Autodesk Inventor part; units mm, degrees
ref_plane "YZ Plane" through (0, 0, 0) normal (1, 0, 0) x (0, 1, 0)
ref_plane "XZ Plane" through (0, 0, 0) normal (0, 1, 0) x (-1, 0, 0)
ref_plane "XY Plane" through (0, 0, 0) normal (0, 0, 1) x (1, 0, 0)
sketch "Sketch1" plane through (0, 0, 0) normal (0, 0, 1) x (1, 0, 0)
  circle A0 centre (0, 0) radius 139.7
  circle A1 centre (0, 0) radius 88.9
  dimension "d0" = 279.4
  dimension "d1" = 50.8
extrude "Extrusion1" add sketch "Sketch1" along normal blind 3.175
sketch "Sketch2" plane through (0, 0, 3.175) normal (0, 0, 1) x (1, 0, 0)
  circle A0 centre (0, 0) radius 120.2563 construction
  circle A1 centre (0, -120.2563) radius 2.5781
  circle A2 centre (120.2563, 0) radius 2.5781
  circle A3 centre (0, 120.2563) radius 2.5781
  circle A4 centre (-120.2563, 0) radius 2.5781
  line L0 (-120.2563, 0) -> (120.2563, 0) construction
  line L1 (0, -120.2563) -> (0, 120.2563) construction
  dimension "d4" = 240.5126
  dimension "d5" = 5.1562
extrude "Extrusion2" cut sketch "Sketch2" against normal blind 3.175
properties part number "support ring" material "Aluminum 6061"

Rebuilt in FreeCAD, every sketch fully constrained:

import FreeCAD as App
import Part
import Sketcher
Q = App.Units.Quantity

doc = App.newDocument("Part")
body = doc.addObject("PartDesign::Body", "Body")

# Sketch on XY plane
sketch1 = body.newObject("Sketcher::SketchObject", "Sketch")
sketch1.AttachmentSupport = (doc.getObject("XY_Plane"), [""])
sketch1.MapMode = "FlatFace"
sketch1.addGeometry([
    Part.Circle(App.Vector(0, 0, 0), App.Vector(0, 0, 1), 140),
    Part.Circle(App.Vector(0, 0, 0), App.Vector(0, 0, 1), 89),
], False)
sketch1.addConstraint([
    Sketcher.Constraint("Coincident", 0, 3, -1, 1),
    Sketcher.Constraint("Coincident", 1, 3, -1, 1),
    Sketcher.Constraint("Diameter", 0, Q("11 in")),
    Sketcher.Constraint("Diameter", 1, Q("7 in")),
])
pad1 = body.newObject("PartDesign::Pad", "Pad")
pad1.Profile = sketch1
pad1.Length = Q("0.125 in")

# Sketch on XY plane
sketch2 = body.newObject("Sketcher::SketchObject", "Sketch001")
sketch2.AttachmentSupport = (doc.getObject("XY_Plane"), [""])
sketch2.MapMode = "FlatFace"
sketch2.AttachmentOffset = App.Placement(App.Vector(0, 0, 0.125 * 25.4), App.Rotation())
sketch2.addGeometry([
    Part.Circle(App.Vector(0, -120.3, 0), App.Vector(0, 0, 1), 2.6),
    Part.Circle(App.Vector(120.3, 0, 0), App.Vector(0, 0, 1), 2.6),
    Part.Circle(App.Vector(0, 120.3, 0), App.Vector(0, 0, 1), 2.6),
    Part.Circle(App.Vector(-120.3, 0, 0), App.Vector(0, 0, 1), 2.6),
], False)
sketch2.addConstraint([
    Sketcher.Constraint("Equal", 0, 1),
    Sketcher.Constraint("Equal", 1, 2),
    Sketcher.Constraint("Equal", 2, 3),
    Sketcher.Constraint("Symmetric", 0, 3, 2, 3, -1, 1),
    Sketcher.Constraint("Symmetric", 1, 3, 3, 3, -1, 1),
    Sketcher.Constraint("PointOnObject", 0, 3, -2),
    Sketcher.Constraint("PointOnObject", 1, 3, -1),
    Sketcher.Constraint("Diameter", 0, Q("0.203 in")),
    Sketcher.Constraint("DistanceY", 0, 3, 2, 3, Q("9.469 in")),
    Sketcher.Constraint("DistanceX", 3, 3, 1, 3, Q("9.469 in")),
])
pocket1 = body.newObject("PartDesign::Pocket", "Pocket")
pocket1.Profile = sketch2
pocket1.Length = Q("0.125 in")

doc.recompute()
